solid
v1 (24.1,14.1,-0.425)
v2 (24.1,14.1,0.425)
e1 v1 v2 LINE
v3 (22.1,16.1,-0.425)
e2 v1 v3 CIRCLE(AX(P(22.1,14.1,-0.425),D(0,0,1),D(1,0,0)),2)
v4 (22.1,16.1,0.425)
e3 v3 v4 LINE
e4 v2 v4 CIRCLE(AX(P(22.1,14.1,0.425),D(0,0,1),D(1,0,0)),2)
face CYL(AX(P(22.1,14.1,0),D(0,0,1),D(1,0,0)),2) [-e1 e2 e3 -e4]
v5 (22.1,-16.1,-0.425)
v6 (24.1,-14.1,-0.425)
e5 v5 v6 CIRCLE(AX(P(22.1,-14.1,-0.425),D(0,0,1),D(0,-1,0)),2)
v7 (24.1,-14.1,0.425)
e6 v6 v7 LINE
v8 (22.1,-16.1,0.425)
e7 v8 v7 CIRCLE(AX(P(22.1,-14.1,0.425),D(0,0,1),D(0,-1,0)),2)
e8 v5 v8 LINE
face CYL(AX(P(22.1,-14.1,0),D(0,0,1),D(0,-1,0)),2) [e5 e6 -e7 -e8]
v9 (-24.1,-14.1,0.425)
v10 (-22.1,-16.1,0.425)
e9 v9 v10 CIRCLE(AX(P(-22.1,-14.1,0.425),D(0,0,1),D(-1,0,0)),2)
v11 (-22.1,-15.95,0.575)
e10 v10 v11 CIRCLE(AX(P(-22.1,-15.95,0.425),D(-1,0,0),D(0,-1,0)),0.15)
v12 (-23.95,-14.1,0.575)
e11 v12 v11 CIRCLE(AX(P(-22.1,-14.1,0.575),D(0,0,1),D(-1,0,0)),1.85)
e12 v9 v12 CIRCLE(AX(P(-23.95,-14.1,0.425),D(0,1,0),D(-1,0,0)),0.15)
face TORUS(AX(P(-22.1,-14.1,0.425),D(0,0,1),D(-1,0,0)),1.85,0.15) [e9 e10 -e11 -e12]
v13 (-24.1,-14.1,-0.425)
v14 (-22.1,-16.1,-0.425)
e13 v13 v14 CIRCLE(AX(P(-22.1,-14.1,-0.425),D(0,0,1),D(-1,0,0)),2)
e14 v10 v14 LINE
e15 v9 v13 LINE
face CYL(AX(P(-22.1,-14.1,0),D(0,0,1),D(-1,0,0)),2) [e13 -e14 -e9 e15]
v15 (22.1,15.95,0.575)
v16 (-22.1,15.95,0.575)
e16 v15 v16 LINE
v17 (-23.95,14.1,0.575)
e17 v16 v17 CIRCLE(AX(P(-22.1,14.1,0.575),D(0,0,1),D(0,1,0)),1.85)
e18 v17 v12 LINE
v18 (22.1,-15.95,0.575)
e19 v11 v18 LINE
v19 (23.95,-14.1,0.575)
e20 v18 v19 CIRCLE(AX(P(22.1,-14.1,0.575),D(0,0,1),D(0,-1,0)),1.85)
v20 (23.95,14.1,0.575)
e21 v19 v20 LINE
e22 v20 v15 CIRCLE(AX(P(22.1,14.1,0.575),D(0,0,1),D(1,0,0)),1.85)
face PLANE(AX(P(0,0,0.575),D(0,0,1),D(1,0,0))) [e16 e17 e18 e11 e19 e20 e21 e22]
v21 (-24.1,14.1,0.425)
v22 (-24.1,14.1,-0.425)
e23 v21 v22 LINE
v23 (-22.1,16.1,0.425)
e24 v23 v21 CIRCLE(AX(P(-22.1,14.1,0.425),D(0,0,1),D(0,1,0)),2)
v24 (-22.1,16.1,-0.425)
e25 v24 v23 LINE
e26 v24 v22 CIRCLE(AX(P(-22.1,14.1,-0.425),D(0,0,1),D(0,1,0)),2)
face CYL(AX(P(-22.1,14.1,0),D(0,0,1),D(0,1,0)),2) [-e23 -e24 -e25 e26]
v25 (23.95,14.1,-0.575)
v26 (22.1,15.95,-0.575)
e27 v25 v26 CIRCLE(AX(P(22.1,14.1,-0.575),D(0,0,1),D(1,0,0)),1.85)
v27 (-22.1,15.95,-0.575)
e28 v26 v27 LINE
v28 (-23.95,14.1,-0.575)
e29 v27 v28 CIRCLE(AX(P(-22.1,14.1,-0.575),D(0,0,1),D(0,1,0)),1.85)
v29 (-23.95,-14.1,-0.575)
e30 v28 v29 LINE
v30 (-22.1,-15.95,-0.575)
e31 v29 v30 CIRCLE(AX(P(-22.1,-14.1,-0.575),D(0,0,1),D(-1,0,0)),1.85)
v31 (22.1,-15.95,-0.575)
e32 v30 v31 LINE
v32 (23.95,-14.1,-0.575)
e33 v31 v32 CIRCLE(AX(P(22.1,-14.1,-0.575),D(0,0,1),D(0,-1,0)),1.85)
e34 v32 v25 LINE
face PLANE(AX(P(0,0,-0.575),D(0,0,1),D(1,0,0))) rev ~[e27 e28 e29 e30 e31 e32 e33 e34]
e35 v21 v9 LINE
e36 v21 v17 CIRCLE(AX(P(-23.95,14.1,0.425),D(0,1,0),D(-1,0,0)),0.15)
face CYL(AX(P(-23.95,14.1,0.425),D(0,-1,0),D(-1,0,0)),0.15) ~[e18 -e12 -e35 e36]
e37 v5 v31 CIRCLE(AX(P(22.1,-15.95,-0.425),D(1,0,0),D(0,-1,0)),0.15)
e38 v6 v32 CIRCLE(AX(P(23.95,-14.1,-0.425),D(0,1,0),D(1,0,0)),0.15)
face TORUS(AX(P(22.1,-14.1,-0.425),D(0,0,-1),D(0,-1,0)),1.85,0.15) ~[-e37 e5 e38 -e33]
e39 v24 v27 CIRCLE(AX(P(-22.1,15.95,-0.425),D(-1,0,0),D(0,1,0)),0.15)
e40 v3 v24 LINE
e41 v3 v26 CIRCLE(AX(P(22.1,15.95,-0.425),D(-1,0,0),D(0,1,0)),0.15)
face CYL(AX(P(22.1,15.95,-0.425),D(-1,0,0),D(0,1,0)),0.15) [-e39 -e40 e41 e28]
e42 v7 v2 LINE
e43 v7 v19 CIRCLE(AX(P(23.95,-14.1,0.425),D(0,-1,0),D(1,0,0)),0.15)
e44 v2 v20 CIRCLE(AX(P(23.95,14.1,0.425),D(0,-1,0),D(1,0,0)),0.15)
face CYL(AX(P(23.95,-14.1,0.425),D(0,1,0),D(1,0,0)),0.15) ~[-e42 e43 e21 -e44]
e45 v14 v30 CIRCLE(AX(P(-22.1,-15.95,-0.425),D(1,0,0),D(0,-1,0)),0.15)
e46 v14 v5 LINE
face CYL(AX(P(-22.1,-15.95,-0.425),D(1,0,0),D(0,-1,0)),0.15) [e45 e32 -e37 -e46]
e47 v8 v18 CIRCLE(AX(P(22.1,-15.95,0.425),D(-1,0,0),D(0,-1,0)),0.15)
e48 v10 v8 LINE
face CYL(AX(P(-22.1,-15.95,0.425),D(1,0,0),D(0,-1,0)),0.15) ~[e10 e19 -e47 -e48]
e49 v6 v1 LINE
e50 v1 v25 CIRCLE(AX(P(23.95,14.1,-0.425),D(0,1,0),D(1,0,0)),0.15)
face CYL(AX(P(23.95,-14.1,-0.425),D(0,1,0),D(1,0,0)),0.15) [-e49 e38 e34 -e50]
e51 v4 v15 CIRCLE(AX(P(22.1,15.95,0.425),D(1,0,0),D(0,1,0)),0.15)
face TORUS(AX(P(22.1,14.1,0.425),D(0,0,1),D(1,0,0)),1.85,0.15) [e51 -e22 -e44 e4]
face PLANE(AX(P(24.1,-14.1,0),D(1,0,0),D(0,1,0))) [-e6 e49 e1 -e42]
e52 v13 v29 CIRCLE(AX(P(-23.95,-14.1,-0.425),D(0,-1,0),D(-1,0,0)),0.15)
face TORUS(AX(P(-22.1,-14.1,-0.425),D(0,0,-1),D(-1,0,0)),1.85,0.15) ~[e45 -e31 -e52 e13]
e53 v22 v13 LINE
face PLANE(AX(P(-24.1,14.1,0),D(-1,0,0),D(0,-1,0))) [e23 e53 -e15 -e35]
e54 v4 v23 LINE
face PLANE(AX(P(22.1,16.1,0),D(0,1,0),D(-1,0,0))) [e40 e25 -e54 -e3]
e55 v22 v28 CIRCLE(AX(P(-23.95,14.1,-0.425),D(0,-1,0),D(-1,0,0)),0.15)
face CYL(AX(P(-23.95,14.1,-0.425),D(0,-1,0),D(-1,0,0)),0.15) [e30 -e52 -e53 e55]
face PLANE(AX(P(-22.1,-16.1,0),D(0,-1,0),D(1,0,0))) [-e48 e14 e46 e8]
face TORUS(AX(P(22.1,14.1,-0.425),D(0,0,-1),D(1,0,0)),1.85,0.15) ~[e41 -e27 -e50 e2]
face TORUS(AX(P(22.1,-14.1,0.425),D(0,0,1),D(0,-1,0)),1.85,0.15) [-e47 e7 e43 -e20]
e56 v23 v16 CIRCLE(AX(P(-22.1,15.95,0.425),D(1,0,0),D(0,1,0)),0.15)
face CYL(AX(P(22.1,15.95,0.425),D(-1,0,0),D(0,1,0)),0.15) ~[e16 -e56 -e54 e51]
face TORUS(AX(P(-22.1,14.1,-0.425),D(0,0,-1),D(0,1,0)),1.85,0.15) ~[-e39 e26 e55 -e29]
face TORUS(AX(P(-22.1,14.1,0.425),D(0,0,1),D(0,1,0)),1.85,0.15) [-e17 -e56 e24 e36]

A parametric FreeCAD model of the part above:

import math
import FreeCAD as App
import Part
import Sketcher
Q = App.Units.Quantity


def edges_at(feature, points):
    """Names of the edges that pass closest to the given points."""
    edges = feature.Shape.Edges
    near = lambda p: min(range(len(edges)), key=lambda i: edges[i].distToShape(Part.Vertex(*p))[0])
    return sorted({f"Edge{near(p) + 1}" for p in points})

doc = App.newDocument("Part")
body = doc.addObject("PartDesign::Body", "Body")

# Sketch on XY plane
sketch1 = body.newObject("Sketcher::SketchObject", "Sketch")
sketch1.AttachmentSupport = (doc.getObject("XY_Plane"), [""])
sketch1.MapMode = "FlatFace"
sketch1.addGeometry([
    Part.LineSegment(App.Vector(-22.1, -16.1, 0), App.Vector(22.1, -16.1, 0)),  # 0
    Part.ArcOfCircle(Part.Circle(App.Vector(22.1, -14.1, 0), App.Vector(0, 0, 1), 2), math.radians(-90), math.radians(0)),  # 1
    Part.LineSegment(App.Vector(24.1, -14.1, 0), App.Vector(24.1, 14.1, 0)),  # 2
    Part.ArcOfCircle(Part.Circle(App.Vector(22.1, 14.1, 0), App.Vector(0, 0, 1), 2), math.radians(0), math.radians(90)),  # 3
    Part.LineSegment(App.Vector(22.1, 16.1, 0), App.Vector(-22.1, 16.1, 0)),  # 4
    Part.ArcOfCircle(Part.Circle(App.Vector(-22.1, 14.1, 0), App.Vector(0, 0, 1), 2), math.radians(90), math.radians(180)),  # 5
    Part.LineSegment(App.Vector(-24.1, 14.1, 0), App.Vector(-24.1, -14.1, 0)),  # 6
    Part.ArcOfCircle(Part.Circle(App.Vector(-22.1, -14.1, 0), App.Vector(0, 0, 1), 2), math.radians(180), math.radians(270)),  # 7
], False)
sketch1.addConstraint([
    Sketcher.Constraint("Tangent", 0, 2, 1, 1),
    Sketcher.Constraint("Tangent", 1, 2, 2, 1),
    Sketcher.Constraint("Tangent", 2, 2, 3, 1),
    Sketcher.Constraint("Tangent", 3, 2, 4, 1),
    Sketcher.Constraint("Tangent", 4, 2, 5, 1),
    Sketcher.Constraint("Tangent", 5, 2, 6, 1),
    Sketcher.Constraint("Tangent", 6, 2, 7, 1),
    Sketcher.Constraint("Tangent", 7, 2, 0, 1),
    Sketcher.Constraint("Horizontal", 0),
    Sketcher.Constraint("Vertical", 2),
    Sketcher.Constraint("Horizontal", 4),
    Sketcher.Constraint("Vertical", 6),
    Sketcher.Constraint("Equal", 1, 3),
    Sketcher.Constraint("Equal", 3, 5),
    Sketcher.Constraint("Equal", 5, 7),
    Sketcher.Constraint("Symmetric", 1, 3, 5, 3, -1, 1),
    Sketcher.Constraint("Radius", 1, Q("2 mm")),
    Sketcher.Constraint("DistanceX", 0, 1, 0, 2, Q("44.2 mm")),
    Sketcher.Constraint("DistanceY", 2, 1, 2, 2, Q("28.2 mm")),
])
pad1 = body.newObject("PartDesign::Pad", "Pad")
pad1.Profile = sketch1
pad1.Length = 1.15
pad1.Midplane = True
doc.recompute()

fillet = body.newObject("PartDesign::Fillet", "Fillet")
fillet.Base = (pad1, edges_at(pad1, [
    (0, -16.1, -0.575),
    (23.514, -15.514, -0.575),
    (24.1, 0, -0.575),
    (23.514, 15.514, -0.575),
    (0, 16.1, -0.575),
    (-23.514, 15.514, -0.575),
    (-24.1, 0, -0.575),
    (-23.514, -15.514, -0.575),
    (0, -16.1, 0.575),
    (23.514, -15.514, 0.575),
    (24.1, 0, 0.575),
    (23.514, 15.514, 0.575),
    (0, 16.1, 0.575),
    (-23.514, 15.514, 0.575),
    (-24.1, 0, 0.575),
    (-23.514, -15.514, 0.575),
]))
fillet.Radius = 0.15

doc.recompute()
